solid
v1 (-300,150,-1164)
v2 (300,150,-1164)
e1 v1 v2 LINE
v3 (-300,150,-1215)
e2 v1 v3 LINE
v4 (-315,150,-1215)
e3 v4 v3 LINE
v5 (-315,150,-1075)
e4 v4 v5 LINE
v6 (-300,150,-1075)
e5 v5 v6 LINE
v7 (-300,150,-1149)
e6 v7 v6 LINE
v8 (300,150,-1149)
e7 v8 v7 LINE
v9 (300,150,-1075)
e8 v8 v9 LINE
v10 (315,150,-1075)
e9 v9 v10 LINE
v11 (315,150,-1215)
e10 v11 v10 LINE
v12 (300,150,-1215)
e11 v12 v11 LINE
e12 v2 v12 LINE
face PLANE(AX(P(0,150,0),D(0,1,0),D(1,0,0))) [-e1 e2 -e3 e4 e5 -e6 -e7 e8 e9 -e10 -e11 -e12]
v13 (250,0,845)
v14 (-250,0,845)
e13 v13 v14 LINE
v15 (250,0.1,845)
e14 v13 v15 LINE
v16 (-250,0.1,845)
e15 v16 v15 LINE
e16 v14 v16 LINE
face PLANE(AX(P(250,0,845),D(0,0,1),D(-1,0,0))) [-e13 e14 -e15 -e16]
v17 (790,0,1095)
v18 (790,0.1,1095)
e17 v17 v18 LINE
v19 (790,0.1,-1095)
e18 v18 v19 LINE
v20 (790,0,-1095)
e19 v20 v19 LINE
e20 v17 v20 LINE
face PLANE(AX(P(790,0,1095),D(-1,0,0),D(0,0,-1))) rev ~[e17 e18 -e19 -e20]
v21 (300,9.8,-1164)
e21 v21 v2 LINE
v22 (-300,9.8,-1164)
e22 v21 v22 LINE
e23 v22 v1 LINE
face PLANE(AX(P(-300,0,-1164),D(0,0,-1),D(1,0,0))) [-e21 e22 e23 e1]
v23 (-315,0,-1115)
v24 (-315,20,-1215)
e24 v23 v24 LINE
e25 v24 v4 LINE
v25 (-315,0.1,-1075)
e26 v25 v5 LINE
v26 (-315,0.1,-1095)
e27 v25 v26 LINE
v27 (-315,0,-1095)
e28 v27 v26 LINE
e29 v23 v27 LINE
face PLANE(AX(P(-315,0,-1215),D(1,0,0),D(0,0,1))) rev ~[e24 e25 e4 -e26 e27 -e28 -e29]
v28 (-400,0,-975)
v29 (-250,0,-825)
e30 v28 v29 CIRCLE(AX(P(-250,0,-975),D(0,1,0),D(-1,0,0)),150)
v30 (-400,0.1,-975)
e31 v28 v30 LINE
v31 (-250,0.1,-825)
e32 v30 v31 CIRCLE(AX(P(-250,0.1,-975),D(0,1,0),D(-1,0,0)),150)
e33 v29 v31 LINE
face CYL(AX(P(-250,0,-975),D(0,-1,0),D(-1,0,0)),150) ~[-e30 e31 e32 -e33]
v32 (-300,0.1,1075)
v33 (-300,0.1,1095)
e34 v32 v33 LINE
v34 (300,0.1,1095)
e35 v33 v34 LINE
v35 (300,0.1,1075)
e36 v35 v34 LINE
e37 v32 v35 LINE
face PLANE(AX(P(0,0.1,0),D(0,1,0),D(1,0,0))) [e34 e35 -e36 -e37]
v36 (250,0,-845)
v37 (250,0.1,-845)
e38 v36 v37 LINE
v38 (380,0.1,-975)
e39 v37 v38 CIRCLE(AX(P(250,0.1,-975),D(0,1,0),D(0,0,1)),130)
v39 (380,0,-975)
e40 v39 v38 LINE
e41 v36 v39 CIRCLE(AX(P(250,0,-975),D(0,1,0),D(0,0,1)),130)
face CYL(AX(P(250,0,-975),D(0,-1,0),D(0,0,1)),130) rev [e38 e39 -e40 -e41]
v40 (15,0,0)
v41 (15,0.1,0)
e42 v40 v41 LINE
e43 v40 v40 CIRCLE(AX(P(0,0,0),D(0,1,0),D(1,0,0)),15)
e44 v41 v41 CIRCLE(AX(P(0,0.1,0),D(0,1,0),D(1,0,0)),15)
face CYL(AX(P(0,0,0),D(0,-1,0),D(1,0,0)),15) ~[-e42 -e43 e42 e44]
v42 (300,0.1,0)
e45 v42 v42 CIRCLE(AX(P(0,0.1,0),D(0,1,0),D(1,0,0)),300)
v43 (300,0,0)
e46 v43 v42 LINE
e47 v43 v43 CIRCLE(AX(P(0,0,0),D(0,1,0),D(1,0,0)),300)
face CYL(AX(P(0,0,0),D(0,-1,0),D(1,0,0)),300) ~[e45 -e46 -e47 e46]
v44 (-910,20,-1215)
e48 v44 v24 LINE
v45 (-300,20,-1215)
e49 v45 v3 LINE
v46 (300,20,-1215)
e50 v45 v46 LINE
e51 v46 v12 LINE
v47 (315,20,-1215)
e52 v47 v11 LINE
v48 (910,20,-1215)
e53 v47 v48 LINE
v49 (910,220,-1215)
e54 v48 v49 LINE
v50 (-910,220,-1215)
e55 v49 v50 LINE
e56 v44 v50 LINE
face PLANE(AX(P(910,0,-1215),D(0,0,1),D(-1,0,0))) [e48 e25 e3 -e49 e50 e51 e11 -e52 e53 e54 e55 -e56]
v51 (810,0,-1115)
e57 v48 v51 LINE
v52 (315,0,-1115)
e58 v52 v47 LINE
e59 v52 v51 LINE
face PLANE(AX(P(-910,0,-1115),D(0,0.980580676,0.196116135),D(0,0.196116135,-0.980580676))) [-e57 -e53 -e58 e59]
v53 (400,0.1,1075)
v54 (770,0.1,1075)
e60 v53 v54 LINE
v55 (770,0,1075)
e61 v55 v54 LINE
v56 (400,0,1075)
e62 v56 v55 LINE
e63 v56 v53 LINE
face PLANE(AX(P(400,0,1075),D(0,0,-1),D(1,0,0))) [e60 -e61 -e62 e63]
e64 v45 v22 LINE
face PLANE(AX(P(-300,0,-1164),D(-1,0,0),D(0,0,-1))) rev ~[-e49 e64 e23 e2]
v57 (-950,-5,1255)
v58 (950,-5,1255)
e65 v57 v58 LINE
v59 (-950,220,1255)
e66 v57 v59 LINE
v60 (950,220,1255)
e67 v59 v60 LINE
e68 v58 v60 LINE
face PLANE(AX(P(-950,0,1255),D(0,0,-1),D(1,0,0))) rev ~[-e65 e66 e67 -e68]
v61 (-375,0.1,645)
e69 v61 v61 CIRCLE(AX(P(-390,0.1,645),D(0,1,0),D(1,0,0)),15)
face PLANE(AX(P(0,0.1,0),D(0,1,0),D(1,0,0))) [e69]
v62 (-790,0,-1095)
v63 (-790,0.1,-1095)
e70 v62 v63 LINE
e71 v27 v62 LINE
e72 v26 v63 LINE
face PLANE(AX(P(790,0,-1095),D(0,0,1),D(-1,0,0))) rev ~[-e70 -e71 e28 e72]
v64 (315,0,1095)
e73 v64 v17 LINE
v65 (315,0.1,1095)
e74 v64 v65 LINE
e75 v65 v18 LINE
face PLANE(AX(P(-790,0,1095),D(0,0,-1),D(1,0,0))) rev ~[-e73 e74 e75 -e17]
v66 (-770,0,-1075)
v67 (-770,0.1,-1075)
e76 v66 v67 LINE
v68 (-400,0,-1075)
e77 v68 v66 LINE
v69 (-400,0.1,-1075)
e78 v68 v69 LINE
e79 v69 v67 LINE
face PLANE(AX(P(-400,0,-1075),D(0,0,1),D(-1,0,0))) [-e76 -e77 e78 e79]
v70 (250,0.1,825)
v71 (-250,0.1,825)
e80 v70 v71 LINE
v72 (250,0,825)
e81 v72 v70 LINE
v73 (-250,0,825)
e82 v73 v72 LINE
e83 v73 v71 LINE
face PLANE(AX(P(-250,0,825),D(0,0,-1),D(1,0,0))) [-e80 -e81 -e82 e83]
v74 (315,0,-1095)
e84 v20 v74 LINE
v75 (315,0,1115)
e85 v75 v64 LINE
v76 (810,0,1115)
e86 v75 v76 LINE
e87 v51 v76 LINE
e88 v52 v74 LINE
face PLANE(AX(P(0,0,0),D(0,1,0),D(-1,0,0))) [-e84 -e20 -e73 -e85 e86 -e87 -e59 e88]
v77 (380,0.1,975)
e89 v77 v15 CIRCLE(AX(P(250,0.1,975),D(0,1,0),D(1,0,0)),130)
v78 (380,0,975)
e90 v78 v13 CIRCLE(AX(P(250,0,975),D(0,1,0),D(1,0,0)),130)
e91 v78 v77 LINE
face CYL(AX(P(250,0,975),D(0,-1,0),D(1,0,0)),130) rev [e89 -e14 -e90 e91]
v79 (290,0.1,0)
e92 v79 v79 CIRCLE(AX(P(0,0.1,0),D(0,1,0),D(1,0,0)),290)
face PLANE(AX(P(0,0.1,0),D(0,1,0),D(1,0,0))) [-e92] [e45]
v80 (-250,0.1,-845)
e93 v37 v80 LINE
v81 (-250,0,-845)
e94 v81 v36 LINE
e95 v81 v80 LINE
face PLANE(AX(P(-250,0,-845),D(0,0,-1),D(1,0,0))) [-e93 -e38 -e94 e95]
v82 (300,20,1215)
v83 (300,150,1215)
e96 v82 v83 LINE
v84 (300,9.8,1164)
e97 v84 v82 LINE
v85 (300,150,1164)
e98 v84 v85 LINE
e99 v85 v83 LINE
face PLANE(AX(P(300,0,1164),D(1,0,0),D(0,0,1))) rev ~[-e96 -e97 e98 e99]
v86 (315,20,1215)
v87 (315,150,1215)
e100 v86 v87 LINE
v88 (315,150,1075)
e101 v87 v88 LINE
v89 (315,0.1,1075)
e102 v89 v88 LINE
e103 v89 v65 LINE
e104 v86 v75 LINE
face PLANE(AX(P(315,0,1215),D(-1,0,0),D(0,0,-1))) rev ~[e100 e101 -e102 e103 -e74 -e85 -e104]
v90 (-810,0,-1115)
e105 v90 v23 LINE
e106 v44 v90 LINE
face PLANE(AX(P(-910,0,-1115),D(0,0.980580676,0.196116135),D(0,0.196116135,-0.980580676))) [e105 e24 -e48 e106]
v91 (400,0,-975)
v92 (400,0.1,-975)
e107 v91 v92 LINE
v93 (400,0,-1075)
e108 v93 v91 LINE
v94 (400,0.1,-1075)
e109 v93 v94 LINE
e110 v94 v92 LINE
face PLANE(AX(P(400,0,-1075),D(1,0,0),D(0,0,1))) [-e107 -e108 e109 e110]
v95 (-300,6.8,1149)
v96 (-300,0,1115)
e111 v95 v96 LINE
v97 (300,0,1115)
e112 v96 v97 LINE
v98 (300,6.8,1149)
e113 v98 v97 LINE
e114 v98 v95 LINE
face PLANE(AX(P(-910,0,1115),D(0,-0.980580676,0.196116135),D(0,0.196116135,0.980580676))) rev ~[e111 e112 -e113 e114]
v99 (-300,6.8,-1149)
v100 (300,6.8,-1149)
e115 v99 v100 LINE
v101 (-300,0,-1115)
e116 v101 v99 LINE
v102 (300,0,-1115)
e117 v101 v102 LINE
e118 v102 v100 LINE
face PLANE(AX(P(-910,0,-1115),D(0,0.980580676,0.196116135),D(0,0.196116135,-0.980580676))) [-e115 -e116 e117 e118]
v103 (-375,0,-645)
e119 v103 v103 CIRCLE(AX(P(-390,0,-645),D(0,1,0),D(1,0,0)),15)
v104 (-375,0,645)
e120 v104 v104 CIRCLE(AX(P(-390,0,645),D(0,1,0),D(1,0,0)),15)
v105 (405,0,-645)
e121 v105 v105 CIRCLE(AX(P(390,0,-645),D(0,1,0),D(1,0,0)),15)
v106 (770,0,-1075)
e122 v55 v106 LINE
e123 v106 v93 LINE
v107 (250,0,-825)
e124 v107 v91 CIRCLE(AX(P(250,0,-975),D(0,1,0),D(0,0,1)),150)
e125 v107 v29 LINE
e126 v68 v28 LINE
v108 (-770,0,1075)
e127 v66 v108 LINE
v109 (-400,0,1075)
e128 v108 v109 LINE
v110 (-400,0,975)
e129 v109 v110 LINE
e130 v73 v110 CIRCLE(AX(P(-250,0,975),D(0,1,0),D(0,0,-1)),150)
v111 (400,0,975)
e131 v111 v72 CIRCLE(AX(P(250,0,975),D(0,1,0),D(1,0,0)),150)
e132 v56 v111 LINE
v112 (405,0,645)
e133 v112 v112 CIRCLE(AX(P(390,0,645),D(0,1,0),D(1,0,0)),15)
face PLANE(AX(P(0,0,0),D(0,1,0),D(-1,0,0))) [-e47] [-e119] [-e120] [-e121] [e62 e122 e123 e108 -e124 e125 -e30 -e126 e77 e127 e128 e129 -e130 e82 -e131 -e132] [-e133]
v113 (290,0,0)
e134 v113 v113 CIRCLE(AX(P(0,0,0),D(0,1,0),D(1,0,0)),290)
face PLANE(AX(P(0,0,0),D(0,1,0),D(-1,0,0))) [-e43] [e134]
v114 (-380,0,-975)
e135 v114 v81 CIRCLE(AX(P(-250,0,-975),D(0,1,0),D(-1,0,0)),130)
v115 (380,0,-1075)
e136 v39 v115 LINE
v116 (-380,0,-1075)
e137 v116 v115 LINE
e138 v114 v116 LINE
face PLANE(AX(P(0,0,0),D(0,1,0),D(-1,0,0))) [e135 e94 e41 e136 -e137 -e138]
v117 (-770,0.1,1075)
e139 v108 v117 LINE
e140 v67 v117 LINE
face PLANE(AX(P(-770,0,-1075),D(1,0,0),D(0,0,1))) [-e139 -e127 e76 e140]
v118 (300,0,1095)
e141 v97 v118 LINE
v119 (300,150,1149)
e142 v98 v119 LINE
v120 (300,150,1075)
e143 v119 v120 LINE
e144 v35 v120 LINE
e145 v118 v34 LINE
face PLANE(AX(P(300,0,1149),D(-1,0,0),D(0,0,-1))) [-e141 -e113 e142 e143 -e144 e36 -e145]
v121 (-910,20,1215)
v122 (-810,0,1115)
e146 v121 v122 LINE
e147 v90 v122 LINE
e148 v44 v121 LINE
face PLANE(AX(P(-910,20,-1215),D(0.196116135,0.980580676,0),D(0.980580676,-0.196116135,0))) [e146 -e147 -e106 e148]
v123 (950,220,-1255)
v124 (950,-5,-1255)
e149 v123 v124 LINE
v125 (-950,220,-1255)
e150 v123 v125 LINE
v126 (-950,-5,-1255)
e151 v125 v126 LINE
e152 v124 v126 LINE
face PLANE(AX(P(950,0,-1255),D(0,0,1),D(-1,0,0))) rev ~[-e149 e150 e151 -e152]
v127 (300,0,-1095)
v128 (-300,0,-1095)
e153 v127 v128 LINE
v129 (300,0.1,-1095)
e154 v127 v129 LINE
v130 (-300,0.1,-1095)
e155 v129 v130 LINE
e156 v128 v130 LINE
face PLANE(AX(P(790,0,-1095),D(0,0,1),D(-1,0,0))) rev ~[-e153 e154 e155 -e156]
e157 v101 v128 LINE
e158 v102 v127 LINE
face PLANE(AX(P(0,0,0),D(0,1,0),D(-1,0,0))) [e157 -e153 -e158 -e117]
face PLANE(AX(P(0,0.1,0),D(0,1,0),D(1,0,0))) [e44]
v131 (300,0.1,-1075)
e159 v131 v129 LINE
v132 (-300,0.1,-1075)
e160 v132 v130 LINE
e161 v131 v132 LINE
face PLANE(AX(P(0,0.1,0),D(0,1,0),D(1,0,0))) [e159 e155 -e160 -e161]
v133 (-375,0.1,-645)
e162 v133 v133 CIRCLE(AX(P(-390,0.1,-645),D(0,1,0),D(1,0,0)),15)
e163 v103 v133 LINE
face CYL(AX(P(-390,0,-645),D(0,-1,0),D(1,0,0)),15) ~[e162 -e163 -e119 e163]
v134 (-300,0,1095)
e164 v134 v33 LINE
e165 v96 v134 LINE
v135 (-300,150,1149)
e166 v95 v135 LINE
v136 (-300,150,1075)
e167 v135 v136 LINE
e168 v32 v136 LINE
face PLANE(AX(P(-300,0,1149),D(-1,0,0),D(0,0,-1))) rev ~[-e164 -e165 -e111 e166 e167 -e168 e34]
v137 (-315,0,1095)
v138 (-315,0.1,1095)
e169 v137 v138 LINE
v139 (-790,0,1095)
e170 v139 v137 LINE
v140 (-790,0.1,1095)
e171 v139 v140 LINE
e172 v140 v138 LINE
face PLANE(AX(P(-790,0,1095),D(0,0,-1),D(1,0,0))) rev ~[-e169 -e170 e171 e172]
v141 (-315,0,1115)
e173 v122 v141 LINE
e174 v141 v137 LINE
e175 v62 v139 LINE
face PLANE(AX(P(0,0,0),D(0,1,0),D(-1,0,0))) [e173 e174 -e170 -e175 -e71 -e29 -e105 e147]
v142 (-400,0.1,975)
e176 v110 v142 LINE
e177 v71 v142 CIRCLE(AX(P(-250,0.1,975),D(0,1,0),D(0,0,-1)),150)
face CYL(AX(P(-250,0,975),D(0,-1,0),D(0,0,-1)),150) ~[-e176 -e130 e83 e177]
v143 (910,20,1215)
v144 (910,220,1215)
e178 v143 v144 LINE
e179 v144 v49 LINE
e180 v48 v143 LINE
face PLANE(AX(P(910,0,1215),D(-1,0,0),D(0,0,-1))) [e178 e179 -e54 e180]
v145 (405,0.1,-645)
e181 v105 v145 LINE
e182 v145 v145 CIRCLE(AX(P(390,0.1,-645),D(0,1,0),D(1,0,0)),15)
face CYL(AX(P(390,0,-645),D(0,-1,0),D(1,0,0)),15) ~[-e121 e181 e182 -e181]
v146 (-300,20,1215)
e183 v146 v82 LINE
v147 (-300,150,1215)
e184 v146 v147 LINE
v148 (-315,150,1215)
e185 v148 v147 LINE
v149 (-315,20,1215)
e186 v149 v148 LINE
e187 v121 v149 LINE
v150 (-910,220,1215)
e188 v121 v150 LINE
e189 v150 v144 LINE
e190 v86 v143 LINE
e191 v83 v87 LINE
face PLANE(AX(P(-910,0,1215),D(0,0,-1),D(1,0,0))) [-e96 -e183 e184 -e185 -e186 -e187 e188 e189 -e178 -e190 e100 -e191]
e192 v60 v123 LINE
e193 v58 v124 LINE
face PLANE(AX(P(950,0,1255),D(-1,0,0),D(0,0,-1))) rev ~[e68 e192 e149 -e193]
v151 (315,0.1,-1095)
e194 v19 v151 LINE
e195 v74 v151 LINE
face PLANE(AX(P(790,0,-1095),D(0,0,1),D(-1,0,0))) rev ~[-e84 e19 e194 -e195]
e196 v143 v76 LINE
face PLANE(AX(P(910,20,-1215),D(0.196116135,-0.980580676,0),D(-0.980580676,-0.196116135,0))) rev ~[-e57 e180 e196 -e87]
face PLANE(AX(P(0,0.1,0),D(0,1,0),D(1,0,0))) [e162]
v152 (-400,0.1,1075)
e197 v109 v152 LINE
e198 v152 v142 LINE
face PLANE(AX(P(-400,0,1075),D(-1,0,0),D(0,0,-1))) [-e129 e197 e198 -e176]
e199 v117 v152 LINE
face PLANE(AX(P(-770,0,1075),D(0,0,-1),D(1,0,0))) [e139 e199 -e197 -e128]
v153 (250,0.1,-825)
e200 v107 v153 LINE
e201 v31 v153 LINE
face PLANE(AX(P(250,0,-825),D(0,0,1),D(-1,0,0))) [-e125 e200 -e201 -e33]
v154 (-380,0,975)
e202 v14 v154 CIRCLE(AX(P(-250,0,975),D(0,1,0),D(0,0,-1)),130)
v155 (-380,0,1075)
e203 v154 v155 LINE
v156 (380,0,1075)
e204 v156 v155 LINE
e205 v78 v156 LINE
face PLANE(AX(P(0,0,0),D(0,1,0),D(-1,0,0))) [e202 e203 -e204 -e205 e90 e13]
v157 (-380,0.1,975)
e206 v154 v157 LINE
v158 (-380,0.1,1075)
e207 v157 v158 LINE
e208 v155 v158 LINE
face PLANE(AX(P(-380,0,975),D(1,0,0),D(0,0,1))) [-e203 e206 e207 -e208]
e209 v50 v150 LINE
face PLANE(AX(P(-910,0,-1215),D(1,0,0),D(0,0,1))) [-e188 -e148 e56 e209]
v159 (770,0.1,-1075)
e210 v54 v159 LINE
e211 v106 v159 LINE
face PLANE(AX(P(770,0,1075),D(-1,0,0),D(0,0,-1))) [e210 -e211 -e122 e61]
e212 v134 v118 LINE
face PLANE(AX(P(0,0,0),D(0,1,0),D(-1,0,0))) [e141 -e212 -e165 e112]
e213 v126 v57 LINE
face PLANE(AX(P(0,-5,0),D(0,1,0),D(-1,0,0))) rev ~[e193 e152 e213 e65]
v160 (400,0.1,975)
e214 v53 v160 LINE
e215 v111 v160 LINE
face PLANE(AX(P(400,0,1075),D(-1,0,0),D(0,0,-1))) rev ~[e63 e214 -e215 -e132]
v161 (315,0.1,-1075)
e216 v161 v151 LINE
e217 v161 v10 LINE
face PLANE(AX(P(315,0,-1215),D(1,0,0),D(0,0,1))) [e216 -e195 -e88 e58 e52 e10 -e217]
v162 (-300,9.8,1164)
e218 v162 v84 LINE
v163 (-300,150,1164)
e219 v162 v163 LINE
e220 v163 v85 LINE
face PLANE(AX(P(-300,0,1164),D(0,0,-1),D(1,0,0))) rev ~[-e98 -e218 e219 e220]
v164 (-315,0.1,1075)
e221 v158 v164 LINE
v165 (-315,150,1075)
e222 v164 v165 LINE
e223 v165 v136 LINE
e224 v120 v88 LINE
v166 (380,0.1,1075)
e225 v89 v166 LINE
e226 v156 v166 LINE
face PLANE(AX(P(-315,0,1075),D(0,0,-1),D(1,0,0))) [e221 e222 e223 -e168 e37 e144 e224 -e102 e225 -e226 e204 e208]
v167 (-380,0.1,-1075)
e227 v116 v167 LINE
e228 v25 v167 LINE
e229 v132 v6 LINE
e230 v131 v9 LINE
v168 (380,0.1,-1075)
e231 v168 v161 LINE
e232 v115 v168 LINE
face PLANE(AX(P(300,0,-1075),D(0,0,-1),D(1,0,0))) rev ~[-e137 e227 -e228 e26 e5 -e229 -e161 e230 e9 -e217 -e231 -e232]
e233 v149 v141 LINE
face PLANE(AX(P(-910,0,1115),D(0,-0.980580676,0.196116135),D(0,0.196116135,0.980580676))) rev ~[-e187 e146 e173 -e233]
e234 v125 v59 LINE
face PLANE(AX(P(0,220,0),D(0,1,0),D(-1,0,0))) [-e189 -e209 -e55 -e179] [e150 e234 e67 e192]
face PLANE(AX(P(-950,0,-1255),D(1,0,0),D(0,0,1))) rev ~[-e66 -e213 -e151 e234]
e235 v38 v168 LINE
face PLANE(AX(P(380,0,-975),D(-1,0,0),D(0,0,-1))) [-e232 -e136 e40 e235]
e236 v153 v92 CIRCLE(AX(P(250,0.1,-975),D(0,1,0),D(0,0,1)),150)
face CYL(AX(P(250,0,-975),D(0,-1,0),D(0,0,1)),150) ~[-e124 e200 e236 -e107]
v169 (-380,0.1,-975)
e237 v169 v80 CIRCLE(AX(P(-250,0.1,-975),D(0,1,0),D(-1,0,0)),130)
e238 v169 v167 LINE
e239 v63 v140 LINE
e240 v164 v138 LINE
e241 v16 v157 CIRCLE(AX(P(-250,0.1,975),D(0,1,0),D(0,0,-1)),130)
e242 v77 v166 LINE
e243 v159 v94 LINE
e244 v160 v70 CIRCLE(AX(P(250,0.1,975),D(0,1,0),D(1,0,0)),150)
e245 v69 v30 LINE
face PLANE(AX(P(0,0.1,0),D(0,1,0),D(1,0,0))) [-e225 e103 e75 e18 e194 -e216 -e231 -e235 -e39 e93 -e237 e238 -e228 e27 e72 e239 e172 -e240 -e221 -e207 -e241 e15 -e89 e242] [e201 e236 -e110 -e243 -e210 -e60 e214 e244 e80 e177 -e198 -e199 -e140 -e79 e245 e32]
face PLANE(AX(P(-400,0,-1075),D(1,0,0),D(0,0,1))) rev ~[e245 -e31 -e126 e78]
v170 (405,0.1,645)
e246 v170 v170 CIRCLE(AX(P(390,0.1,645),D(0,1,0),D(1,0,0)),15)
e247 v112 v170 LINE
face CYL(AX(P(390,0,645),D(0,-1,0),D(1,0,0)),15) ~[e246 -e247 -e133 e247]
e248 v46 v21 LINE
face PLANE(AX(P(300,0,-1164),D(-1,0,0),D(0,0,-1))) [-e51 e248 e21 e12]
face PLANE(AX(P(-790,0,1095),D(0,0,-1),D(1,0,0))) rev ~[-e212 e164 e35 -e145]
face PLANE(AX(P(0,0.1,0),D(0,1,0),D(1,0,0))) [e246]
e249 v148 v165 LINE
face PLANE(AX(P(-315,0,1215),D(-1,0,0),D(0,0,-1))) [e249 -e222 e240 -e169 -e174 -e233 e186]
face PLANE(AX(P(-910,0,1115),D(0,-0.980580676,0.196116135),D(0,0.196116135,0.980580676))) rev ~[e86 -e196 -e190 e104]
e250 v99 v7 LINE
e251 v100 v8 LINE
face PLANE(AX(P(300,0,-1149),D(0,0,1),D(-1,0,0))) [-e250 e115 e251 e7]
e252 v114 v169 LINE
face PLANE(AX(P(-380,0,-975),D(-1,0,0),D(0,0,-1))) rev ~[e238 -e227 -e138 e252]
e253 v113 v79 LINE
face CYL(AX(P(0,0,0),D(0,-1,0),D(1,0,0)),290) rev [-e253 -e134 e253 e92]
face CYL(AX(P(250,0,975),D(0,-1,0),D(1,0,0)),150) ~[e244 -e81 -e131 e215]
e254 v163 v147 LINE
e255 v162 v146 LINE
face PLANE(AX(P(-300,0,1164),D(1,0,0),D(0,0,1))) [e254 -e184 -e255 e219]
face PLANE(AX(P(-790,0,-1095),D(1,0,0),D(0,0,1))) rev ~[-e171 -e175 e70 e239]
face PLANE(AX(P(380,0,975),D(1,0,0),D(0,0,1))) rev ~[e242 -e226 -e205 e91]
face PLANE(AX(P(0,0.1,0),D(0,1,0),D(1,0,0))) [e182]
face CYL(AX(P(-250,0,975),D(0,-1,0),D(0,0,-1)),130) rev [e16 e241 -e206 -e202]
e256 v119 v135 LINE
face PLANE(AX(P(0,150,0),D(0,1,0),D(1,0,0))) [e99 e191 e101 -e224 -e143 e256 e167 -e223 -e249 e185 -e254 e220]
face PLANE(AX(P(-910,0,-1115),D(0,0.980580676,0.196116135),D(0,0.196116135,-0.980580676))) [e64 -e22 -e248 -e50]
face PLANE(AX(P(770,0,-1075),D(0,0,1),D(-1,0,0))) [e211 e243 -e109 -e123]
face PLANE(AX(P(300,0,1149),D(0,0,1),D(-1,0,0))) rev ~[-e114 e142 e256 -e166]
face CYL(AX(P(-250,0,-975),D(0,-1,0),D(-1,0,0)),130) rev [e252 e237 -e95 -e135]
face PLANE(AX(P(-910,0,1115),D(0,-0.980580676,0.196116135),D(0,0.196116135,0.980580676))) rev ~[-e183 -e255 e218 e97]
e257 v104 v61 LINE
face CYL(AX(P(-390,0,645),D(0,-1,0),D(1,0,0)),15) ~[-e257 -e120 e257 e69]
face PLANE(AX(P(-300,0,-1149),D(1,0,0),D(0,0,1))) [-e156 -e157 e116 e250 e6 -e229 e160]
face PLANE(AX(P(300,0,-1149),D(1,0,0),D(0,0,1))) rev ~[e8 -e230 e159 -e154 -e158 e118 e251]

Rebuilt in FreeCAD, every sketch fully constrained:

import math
import FreeCAD as App
import Part
import Sketcher


def add_polygon(sketch, points):
    """Adds a closed chain of lines whose ends are joined by coincident constraints."""
    first, n = sketch.GeometryCount, len(points)
    for a, b in zip(points, points[1:] + points[:1]):
        sketch.addGeometry(Part.LineSegment(App.Vector(*a, 0), App.Vector(*b, 0)), False)
    for i in range(n):
        sketch.addConstraint(Sketcher.Constraint("Coincident", first + i, 2, first + (i + 1) % n, 1))

doc = App.newDocument("Part")
body = doc.addObject("PartDesign::Body", "Body")

sketch1 = body.newObject("Sketcher::SketchObject", "Sketch")
sketch1.AttachmentSupport = (doc.getObject("XZ_Plane"), [""])
sketch1.MapMode = "FlatFace"
add_polygon(sketch1, [(-950, -1255), (-950, 1255), (950, 1255), (950, -1255)])
add_polygon(sketch1, [(910, 1215), (-910, 1215), (-910, -1215), (910, -1215)])
sketch1.addConstraint([
    Sketcher.Constraint("Vertical", 0),
    Sketcher.Constraint("Horizontal", 1),
    Sketcher.Constraint("Vertical", 2),
    Sketcher.Constraint("Horizontal", 3),
    Sketcher.Constraint("Horizontal", 4),
    Sketcher.Constraint("Vertical", 5),
    Sketcher.Constraint("Horizontal", 6),
    Sketcher.Constraint("Vertical", 7),
    Sketcher.Constraint("Symmetric", 0, 2, 2, 2, -1, 1),
    Sketcher.Constraint("Symmetric", 4, 2, 6, 2, -1, 1),
    Sketcher.Constraint("DistanceX", 4, 2, 4, 1, 1820.0),
    Sketcher.Constraint("DistanceY", 5, 2, 5, 1, 2430.0),
    Sketcher.Constraint("DistanceX", 0, 2, 4, 2, 40.0),
    Sketcher.Constraint("DistanceY", 4, 2, 0, 2, 40.0),
])
pad1 = body.newObject("PartDesign::Pad", "Pad")
pad1.Profile = sketch1
pad1.Length = 220
pad1.Reversed = True

sketch2 = body.newObject("Sketcher::SketchObject", "Sketch001")
sketch2.AttachmentSupport = (doc.getObject("XZ_Plane"), [""])
sketch2.MapMode = "FlatFace"
add_polygon(sketch2, [(-950, -1255), (-950, 1255), (950, 1255), (950, -1255)])
sketch2.addConstraint([
    Sketcher.Constraint("Vertical", 0),
    Sketcher.Constraint("Horizontal", 1),
    Sketcher.Constraint("Vertical", 2),
    Sketcher.Constraint("Horizontal", 3),
    Sketcher.Constraint("Symmetric", 0, 2, 2, 2, -1, 1),
    Sketcher.Constraint("DistanceX", 1, 1, 1, 2, 1900.0),
    Sketcher.Constraint("DistanceY", 0, 1, 0, 2, 2510.0),
])
pad2 = body.newObject("PartDesign::Pad", "Pad001")
pad2.Profile = sketch2
pad2.Length = 5

sketch3 = body.newObject("Sketcher::SketchObject", "Sketch002")
sketch3.AttachmentSupport = (doc.getObject("XY_Plane"), [""])
sketch3.MapMode = "FlatFace"
sketch3.AttachmentOffset = App.Placement(App.Vector(0, 0, -1215), App.Rotation())
add_polygon(sketch3, [(-910, 20), (-910, 0), (-810, 0)])
add_polygon(sketch3, [(810, 0), (910, 0), (910, 20)])
sketch3.addConstraint([
    Sketcher.Constraint("Vertical", 0),
    Sketcher.Constraint("Horizontal", 1),
    Sketcher.Constraint("Horizontal", 3),
    Sketcher.Constraint("Vertical", 4),
    Sketcher.Constraint("Symmetric", 0, 2, 3, 2, -1, 1),
    Sketcher.Constraint("Symmetric", 1, 2, 5, 2, -2),
    Sketcher.Constraint("Horizontal", 2, 2, 4, 2),
    Sketcher.Constraint("DistanceX", 1, 1, 1, 2, 100.0),
    Sketcher.Constraint("DistanceY", 0, 2, 0, 1, 20.0),
    Sketcher.Constraint("DistanceX", 0, 2, -1, 1, 910.0),
])
pad3 = body.newObject("PartDesign::Pad", "Pad002")
pad3.Profile = sketch3
pad3.Length = 2430

sketch4 = body.newObject("Sketcher::SketchObject", "Sketch003")
sketch4.AttachmentSupport = (doc.getObject("YZ_Plane"), [""])
sketch4.MapMode = "FlatFace"
sketch4.AttachmentOffset = App.Placement(App.Vector(0, 0, -910), App.Rotation())
add_polygon(sketch4, [(20, 1215), (0, 1215), (0, 1115)])
add_polygon(sketch4, [(0, -1115), (0, -1215), (20, -1215)])
sketch4.addConstraint([
    Sketcher.Constraint("Horizontal", 0),
    Sketcher.Constraint("Vertical", 1),
    Sketcher.Constraint("Vertical", 3),
    Sketcher.Constraint("Horizontal", 4),
    Sketcher.Constraint("Symmetric", 0, 2, 3, 2, -1, 1),
    Sketcher.Constraint("Symmetric", 1, 2, 5, 2, -1),
    Sketcher.Constraint("Vertical", 2, 2, 4, 2),
    Sketcher.Constraint("DistanceX", 0, 2, 0, 1, 20.0),
    Sketcher.Constraint("DistanceY", 1, 2, 1, 1, 100.0),
    Sketcher.Constraint("DistanceY", -1, 1, 0, 2, 1215.0),
])
pad4 = body.newObject("PartDesign::Pad", "Pad003")
pad4.Profile = sketch4
pad4.Length = 1820

sketch5 = body.newObject("Sketcher::SketchObject", "Sketch004")
sketch5.AttachmentSupport = (doc.getObject("XZ_Plane"), [""])
sketch5.MapMode = "FlatFace"
add_polygon(sketch5, [(-790, -1095), (-790, 1095), (790, 1095), (790, -1095)])
sketch5.addGeometry(Part.LineSegment(App.Vector(-400, 1075, 0), App.Vector(-770, 1075, 0)), False)
sketch5.addGeometry(Part.LineSegment(App.Vector(-770, 1075, 0), App.Vector(-770, -1075, 0)), False)
sketch5.addGeometry(Part.LineSegment(App.Vector(-770, -1075, 0), App.Vector(-400, -1075, 0)), False)
sketch5.addGeometry(Part.LineSegment(App.Vector(-400, -1075, 0), App.Vector(-400, -975, 0)), False)
sketch5.addGeometry(Part.ArcOfCircle(Part.Circle(App.Vector(-250, -975, 0), App.Vector(0, 0, 1), 150), math.radians(90), math.radians(180)), False)
sketch5.addGeometry(Part.LineSegment(App.Vector(-250, -825, 0), App.Vector(250, -825, 0)), False)
sketch5.addGeometry(Part.ArcOfCircle(Part.Circle(App.Vector(250, -975, 0), App.Vector(0, 0, 1), 150), math.radians(0), math.radians(90)), False)
sketch5.addGeometry(Part.LineSegment(App.Vector(400, -975, 0), App.Vector(400, -1075, 0)), False)
sketch5.addGeometry(Part.LineSegment(App.Vector(400, -1075, 0), App.Vector(770, -1075, 0)), False)
sketch5.addGeometry(Part.LineSegment(App.Vector(770, -1075, 0), App.Vector(770, 1075, 0)), False)
sketch5.addGeometry(Part.LineSegment(App.Vector(770, 1075, 0), App.Vector(400, 1075, 0)), False)
sketch5.addGeometry(Part.LineSegment(App.Vector(400, 1075, 0), App.Vector(400, 975, 0)), False)
sketch5.addGeometry(Part.ArcOfCircle(Part.Circle(App.Vector(250, 975, 0), App.Vector(0, 0, 1), 150), math.radians(-90), math.radians(0)), False)
sketch5.addGeometry(Part.LineSegment(App.Vector(250, 825, 0), App.Vector(-250, 825, 0)), False)
sketch5.addGeometry(Part.ArcOfCircle(Part.Circle(App.Vector(-250, 975, 0), App.Vector(0, 0, 1), 150), math.radians(180), math.radians(270)), False)
sketch5.addGeometry(Part.LineSegment(App.Vector(-400, 975, 0), App.Vector(-400, 1075, 0)), False)
sketch5.addGeometry(Part.LineSegment(App.Vector(380, 1075, 0), App.Vector(-380, 1075, 0)), False)
sketch5.addGeometry(Part.LineSegment(App.Vector(-380, 1075, 0), App.Vector(-380, 975, 0)), False)
sketch5.addGeometry(Part.ArcOfCircle(Part.Circle(App.Vector(-250, 975, 0), App.Vector(0, 0, 1), 130), math.radians(180), math.radians(270)), False)
sketch5.addGeometry(Part.LineSegment(App.Vector(-250, 845, 0), App.Vector(250, 845, 0)), False)
sketch5.addGeometry(Part.ArcOfCircle(Part.Circle(App.Vector(250, 975, 0), App.Vector(0, 0, 1), 130), math.radians(-90), math.radians(0)), False)
sketch5.addGeometry(Part.LineSegment(App.Vector(380, 975, 0), App.Vector(380, 1075, 0)), False)
sketch5.addGeometry(Part.LineSegment(App.Vector(-380, -1075, 0), App.Vector(380, -1075, 0)), False)
sketch5.addGeometry(Part.LineSegment(App.Vector(380, -1075, 0), App.Vector(380, -975, 0)), False)
sketch5.addGeometry(Part.ArcOfCircle(Part.Circle(App.Vector(250, -975, 0), App.Vector(0, 0, 1), 130), math.radians(0), math.radians(90)), False)
sketch5.addGeometry(Part.LineSegment(App.Vector(250, -845, 0), App.Vector(-250, -845, 0)), False)
sketch5.addGeometry(Part.ArcOfCircle(Part.Circle(App.Vector(-250, -975, 0), App.Vector(0, 0, 1), 130), math.radians(90), math.radians(180)), False)
sketch5.addGeometry(Part.LineSegment(App.Vector(-380, -975, 0), App.Vector(-380, -1075, 0)), False)
sketch5.addConstraint([
    Sketcher.Constraint("Coincident", 4, 2, 5, 1),
    Sketcher.Constraint("Coincident", 5, 2, 6, 1),
    Sketcher.Constraint("Coincident", 6, 2, 7, 1),
    Sketcher.Constraint("Tangent", 7, 2, 8, 2),
    Sketcher.Constraint("Tangent", 8, 1, 9, 1),
    Sketcher.Constraint("Tangent", 9, 2, 10, 2),
    Sketcher.Constraint("Tangent", 10, 1, 11, 1),
    Sketcher.Constraint("Coincident", 11, 2, 12, 1),
    Sketcher.Constraint("Coincident", 12, 2, 13, 1),
    Sketcher.Constraint("Coincident", 13, 2, 14, 1),
    Sketcher.Constraint("Coincident", 14, 2, 15, 1),
    Sketcher.Constraint("Tangent", 15, 2, 16, 2),
    Sketcher.Constraint("Tangent", 16, 1, 17, 1),
    Sketcher.Constraint("Tangent", 17, 2, 18, 2),
    Sketcher.Constraint("Tangent", 18, 1, 19, 1),
    Sketcher.Constraint("Coincident", 19, 2, 4, 1),
    Sketcher.Constraint("Coincident", 20, 2, 21, 1),
    Sketcher.Constraint("Tangent", 21, 2, 22, 1),
    Sketcher.Constraint("Tangent", 22, 2, 23, 1),
    Sketcher.Constraint("Tangent", 23, 2, 24, 1),
    Sketcher.Constraint("Tangent", 24, 2, 25, 1),
    Sketcher.Constraint("Coincident", 25, 2, 20, 1),
    Sketcher.Constraint("Coincident", 26, 2, 27, 1),
    Sketcher.Constraint("Tangent", 27, 2, 28, 1),
    Sketcher.Constraint("Tangent", 28, 2, 29, 1),
    Sketcher.Constraint("Tangent", 29, 2, 30, 1),
    Sketcher.Constraint("Tangent", 30, 2, 31, 1),
    Sketcher.Constraint("Coincident", 31, 2, 26, 1),
    Sketcher.Constraint("Vertical", 0),
    Sketcher.Constraint("Horizontal", 1),
    Sketcher.Constraint("Vertical", 2),
    Sketcher.Constraint("Horizontal", 3),
    Sketcher.Constraint("Horizontal", 4),
    Sketcher.Constraint("Vertical", 5),
    Sketcher.Constraint("Horizontal", 6),
    Sketcher.Constraint("Vertical", 7),
    Sketcher.Constraint("Horizontal", 9),
    Sketcher.Constraint("Vertical", 11),
    Sketcher.Constraint("Horizontal", 12),
    Sketcher.Constraint("Vertical", 13),
    Sketcher.Constraint("Horizontal", 14),
    Sketcher.Constraint("Vertical", 15),
    Sketcher.Constraint("Horizontal", 17),
    Sketcher.Constraint("Vertical", 19),
    Sketcher.Constraint("Horizontal", 20),
    Sketcher.Constraint("Vertical", 21),
    Sketcher.Constraint("Horizontal", 23),
    Sketcher.Constraint("Vertical", 25),
    Sketcher.Constraint("Horizontal", 26),
    Sketcher.Constraint("Vertical", 27),
    Sketcher.Constraint("Horizontal", 29),
    Sketcher.Constraint("Vertical", 31),
    Sketcher.Constraint("Coincident", 22, 3, 18, 3),
    Sketcher.Constraint("Coincident", 24, 3, 16, 3),
    Sketcher.Constraint("Coincident", 28, 3, 10, 3),
    Sketcher.Constraint("Coincident", 30, 3, 8, 3),
    Sketcher.Constraint("Equal", 8, 10),
    Sketcher.Constraint("Equal", 10, 16),
    Sketcher.Constraint("Equal", 16, 18),
    Sketcher.Constraint("Equal", 24, 28),
    Sketcher.Constraint("Symmetric", 8, 3, 16, 3, -1, 1),
    Sketcher.Constraint("Symmetric", 0, 2, 2, 2, -1, 1),
    Sketcher.Constraint("Symmetric", 4, 2, 12, 2, -1, 1),
    Sketcher.Constraint("Symmetric", 20, 2, 26, 2, -1, 1),
    Sketcher.Constraint("Symmetric", 6, 2, 11, 2, -2),
    Sketcher.Constraint("Horizontal", 4, 2, 13, 2),
    Sketcher.Constraint("Horizontal", 19, 2, 20, 2),
    Sketcher.Constraint("Radius", 8, 150.0),
    Sketcher.Constraint("DistanceX", 8, 3, -1, 1, 250.0),
    Sketcher.Constraint("Radius", 22, 130.0),
    Sketcher.Constraint("DistanceY", 18, 3, 0, 2, 120.0),
    Sketcher.Constraint("DistanceX", 0, 2, 4, 2, 20.0),
    Sketcher.Constraint("DistanceY", 4, 2, 0, 2, 20.0),
    Sketcher.Constraint("DistanceX", 1, 1, 1, 2, 1580.0),
    Sketcher.Constraint("DistanceY", 0, 1, 0, 2, 2190.0),
])
pad5 = body.newObject("PartDesign::Pad", "Pad004")
pad5.Profile = sketch5
pad5.Length = 0.1
pad5.Reversed = True

sketch6 = body.newObject("Sketcher::SketchObject", "Sketch005")
sketch6.AttachmentSupport = (doc.getObject("XZ_Plane"), [""])
sketch6.MapMode = "FlatFace"
sketch6.addGeometry([
    Part.Circle(App.Vector(0, 0, 0), App.Vector(0, 0, 1), 300),
    Part.Circle(App.Vector(0, 0, 0), App.Vector(0, 0, 1), 290),
    Part.Circle(App.Vector(0, 0, 0), App.Vector(0, 0, 1), 15),
    Part.Circle(App.Vector(-390, -645, 0), App.Vector(0, 0, 1), 15),
    Part.Circle(App.Vector(-390, 645, 0), App.Vector(0, 0, 1), 15),
    Part.Circle(App.Vector(390, -645, 0), App.Vector(0, 0, 1), 15),
    Part.Circle(App.Vector(390, 645, 0), App.Vector(0, 0, 1), 15),
], False)
sketch6.addConstraint([
    Sketcher.Constraint("Coincident", 0, 3, -1, 1),
    Sketcher.Constraint("Coincident", 1, 3, -1, 1),
    Sketcher.Constraint("Coincident", 2, 3, -1, 1),
    Sketcher.Constraint("Equal", 2, 3),
    Sketcher.Constraint("Equal", 3, 4),
    Sketcher.Constraint("Equal", 4, 5),
    Sketcher.Constraint("Equal", 5, 6),
    Sketcher.Constraint("Symmetric", 4, 3, 5, 3, -1, 1),
    Sketcher.Constraint("Symmetric", 3, 3, 6, 3, -1, 1),
    Sketcher.Constraint("Symmetric", 3, 3, 5, 3, -2),
    Sketcher.Constraint("Diameter", 0, 600.0),
    Sketcher.Constraint("Diameter", 2, 30.0),
    Sketcher.Constraint("Diameter", 1, 580.0),
    Sketcher.Constraint("DistanceX", 3, 3, -1, 1, 390.0),
    Sketcher.Constraint("DistanceY", 3, 3, -1, 1, 645.0),
])
pad6 = body.newObject("PartDesign::Pad", "Pad005")
pad6.Profile = sketch6
pad6.Length = 0.1
pad6.Reversed = True

sketch7 = body.newObject("Sketcher::SketchObject", "Sketch006")
sketch7.AttachmentSupport = (doc.getObject("XZ_Plane"), [""])
sketch7.MapMode = "FlatFace"
add_polygon(sketch7, [(-300, -1149), (300, -1149), (300, -1075), (315, -1075), (315, -1215), (300, -1215), (300, -1164), (-300, -1164), (-300, -1215), (-315, -1215), (-315, -1075), (-300, -1075)])
add_polygon(sketch7, [(300, 1075), (300, 1149), (-300, 1149), (-300, 1075), (-315, 1075), (-315, 1215), (-300, 1215), (-300, 1164), (300, 1164), (300, 1215), (315, 1215), (315, 1075)])
sketch7.addConstraint([
    Sketcher.Constraint("Horizontal", 0),
    Sketcher.Constraint("Vertical", 1),
    Sketcher.Constraint("Horizontal", 2),
    Sketcher.Constraint("Vertical", 3),
    Sketcher.Constraint("Horizontal", 4),
    Sketcher.Constraint("Vertical", 5),
    Sketcher.Constraint("Horizontal", 6),
    Sketcher.Constraint("Vertical", 7),
    Sketcher.Constraint("Horizontal", 8),
    Sketcher.Constraint("Vertical", 9),
    Sketcher.Constraint("Horizontal", 10),
    Sketcher.Constraint("Vertical", 11),
    Sketcher.Constraint("Vertical", 12),
    Sketcher.Constraint("Horizontal", 13),
    Sketcher.Constraint("Vertical", 14),
    Sketcher.Constraint("Horizontal", 15),
    Sketcher.Constraint("Vertical", 16),
    Sketcher.Constraint("Horizontal", 17),
    Sketcher.Constraint("Vertical", 18),
    Sketcher.Constraint("Horizontal", 19),
    Sketcher.Constraint("Vertical", 20),
    Sketcher.Constraint("Horizontal", 21),
    Sketcher.Constraint("Vertical", 22),
    Sketcher.Constraint("Horizontal", 23),
    Sketcher.Constraint("Symmetric", 11, 2, 12, 2, -1, 1),
    Sketcher.Constraint("Symmetric", 1, 2, 14, 2, -1, 1),
    Sketcher.Constraint("Symmetric", 3, 2, 16, 2, -1, 1),
    Sketcher.Constraint("Symmetric", 5, 2, 18, 2, -1, 1),
    Sketcher.Constraint("Symmetric", 7, 2, 20, 2, -1, 1),
    Sketcher.Constraint("Symmetric", 9, 2, 22, 2, -1, 1),
    Sketcher.Constraint("Symmetric", 4, 2, 7, 2, -2),
    Sketcher.Constraint("Symmetric", 2, 2, 9, 2, -2),
    Sketcher.Constraint("Vertical", 1, 2, 4, 2),
    Sketcher.Constraint("Vertical", 7, 2, 10, 2),
    Sketcher.Constraint("DistanceX", 0, 1, 0, 2, 600.0),
    Sketcher.Constraint("DistanceX", 2, 1, 2, 2, 15.0),
    Sketcher.Constraint("DistanceY", 1, 1, 1, 2, 74.0),
    Sketcher.Constraint("DistanceY", 5, 2, 0, 2, 15.0),
    Sketcher.Constraint("DistanceY", 3, 2, 3, 1, 140.0),
    Sketcher.Constraint("DistanceY", 0, 2, -1, 1, 1149.0),
])
pad7 = body.newObject("PartDesign::Pad", "Pad006")
pad7.Profile = sketch7
pad7.Length = 150
pad7.Reversed = True

doc.recompute()
